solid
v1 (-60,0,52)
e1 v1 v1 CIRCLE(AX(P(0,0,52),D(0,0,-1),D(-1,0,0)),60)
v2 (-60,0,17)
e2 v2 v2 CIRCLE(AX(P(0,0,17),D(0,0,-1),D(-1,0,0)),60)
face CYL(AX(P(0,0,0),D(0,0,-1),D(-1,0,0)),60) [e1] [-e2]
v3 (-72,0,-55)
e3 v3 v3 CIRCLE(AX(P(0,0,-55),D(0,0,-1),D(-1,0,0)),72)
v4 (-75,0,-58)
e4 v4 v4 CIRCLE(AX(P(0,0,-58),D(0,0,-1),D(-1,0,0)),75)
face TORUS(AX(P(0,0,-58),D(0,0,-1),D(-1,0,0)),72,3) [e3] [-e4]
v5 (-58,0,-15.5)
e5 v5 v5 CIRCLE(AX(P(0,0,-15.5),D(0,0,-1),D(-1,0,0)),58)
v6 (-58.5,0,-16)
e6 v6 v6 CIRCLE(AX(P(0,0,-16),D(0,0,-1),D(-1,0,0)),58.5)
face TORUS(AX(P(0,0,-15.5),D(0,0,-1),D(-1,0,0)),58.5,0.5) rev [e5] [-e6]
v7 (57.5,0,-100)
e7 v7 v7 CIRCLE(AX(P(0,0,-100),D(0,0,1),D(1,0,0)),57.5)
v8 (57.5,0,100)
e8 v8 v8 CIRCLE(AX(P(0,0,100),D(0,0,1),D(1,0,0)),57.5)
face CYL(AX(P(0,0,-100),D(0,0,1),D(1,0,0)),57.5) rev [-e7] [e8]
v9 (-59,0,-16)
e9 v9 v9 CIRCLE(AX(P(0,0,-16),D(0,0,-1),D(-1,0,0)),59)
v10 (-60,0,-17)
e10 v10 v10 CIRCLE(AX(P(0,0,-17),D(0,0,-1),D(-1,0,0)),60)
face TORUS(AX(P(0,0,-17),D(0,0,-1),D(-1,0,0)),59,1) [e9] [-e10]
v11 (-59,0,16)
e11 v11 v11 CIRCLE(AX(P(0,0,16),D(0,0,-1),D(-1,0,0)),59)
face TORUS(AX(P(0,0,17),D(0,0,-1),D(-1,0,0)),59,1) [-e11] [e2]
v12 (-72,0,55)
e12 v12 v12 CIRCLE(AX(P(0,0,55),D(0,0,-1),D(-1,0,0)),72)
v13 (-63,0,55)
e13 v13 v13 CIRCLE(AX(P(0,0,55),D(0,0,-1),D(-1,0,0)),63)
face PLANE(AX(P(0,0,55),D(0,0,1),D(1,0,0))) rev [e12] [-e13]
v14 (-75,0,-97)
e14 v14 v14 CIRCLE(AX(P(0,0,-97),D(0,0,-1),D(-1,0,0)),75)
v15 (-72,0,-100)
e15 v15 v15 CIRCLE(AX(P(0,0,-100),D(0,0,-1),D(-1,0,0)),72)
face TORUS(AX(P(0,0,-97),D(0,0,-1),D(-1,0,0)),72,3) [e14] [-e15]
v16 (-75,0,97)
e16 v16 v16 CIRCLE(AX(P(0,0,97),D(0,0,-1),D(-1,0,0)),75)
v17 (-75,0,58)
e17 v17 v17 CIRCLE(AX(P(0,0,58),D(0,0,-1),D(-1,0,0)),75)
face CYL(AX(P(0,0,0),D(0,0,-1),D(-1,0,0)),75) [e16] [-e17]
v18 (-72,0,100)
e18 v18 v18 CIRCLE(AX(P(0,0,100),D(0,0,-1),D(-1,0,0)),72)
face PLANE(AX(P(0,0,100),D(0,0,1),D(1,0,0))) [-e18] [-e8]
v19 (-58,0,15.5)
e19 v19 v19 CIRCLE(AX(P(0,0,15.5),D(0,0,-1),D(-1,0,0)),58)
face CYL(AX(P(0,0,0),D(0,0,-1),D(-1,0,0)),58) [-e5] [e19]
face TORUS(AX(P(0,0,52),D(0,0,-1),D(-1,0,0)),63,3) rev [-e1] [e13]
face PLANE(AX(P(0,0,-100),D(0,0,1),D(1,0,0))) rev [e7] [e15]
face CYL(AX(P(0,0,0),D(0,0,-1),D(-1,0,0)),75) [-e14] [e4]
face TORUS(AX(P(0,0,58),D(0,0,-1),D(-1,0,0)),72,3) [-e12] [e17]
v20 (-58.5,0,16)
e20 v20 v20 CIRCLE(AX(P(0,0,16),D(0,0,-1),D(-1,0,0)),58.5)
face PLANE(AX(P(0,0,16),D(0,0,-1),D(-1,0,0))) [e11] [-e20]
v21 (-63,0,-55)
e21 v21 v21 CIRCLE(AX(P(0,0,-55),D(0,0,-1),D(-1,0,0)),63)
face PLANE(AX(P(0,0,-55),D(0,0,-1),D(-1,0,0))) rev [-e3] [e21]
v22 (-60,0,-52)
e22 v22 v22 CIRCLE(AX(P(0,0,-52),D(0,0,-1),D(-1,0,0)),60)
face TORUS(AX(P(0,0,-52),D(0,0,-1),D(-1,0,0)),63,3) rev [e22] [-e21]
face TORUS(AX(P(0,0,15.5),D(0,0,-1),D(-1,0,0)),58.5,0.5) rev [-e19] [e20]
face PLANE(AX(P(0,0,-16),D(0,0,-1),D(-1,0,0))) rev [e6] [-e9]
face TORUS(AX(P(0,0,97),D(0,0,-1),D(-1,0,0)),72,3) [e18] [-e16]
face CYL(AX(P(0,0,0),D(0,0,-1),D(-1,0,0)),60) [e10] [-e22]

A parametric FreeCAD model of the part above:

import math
import FreeCAD as App
import Part
import Sketcher
Q = App.Units.Quantity

doc = App.newDocument("Part")
body = doc.addObject("PartDesign::Body", "Body")

# Sketch on YZ plane
sketch1 = body.newObject("Sketcher::SketchObject", "Sketch")
sketch1.AttachmentSupport = (doc.getObject("YZ_Plane"), [""])
sketch1.MapMode = "FlatFace"
sketch1.addGeometry(Part.ArcOfCircle(Part.Circle(App.Vector(58.5, -15.5, 0), App.Vector(0, 0, 1), 0.5), math.radians(180), math.radians(270)), False)
sketch1.addGeometry(Part.LineSegment(App.Vector(58, -15.5, 0), App.Vector(58, 15.5, 0)), False)
sketch1.addGeometry(Part.ArcOfCircle(Part.Circle(App.Vector(58.5, 15.5, 0), App.Vector(0, 0, 1), 0.5), math.radians(90), math.radians(180)), False)
sketch1.addGeometry(Part.LineSegment(App.Vector(58.5, 16, 0), App.Vector(59, 16, 0)), False)
sketch1.addGeometry(Part.ArcOfCircle(Part.Circle(App.Vector(59, 17, 0), App.Vector(0, 0, 1), 1), math.radians(-90), math.radians(0)), False)
sketch1.addGeometry(Part.LineSegment(App.Vector(60, 17, 0), App.Vector(60, 52, 0)), False)
sketch1.addGeometry(Part.ArcOfCircle(Part.Circle(App.Vector(63, 52, 0), App.Vector(0, 0, 1), 3), math.radians(90), math.radians(180)), False)
sketch1.addGeometry(Part.LineSegment(App.Vector(63, 55, 0), App.Vector(72, 55, 0)), False)
sketch1.addGeometry(Part.ArcOfCircle(Part.Circle(App.Vector(72, 58, 0), App.Vector(0, 0, 1), 3), math.radians(-90), math.radians(0)), False)
sketch1.addGeometry(Part.LineSegment(App.Vector(75, 58, 0), App.Vector(75, 97, 0)), False)
sketch1.addGeometry(Part.ArcOfCircle(Part.Circle(App.Vector(72, 97, 0), App.Vector(0, 0, 1), 3), math.radians(0), math.radians(90)), False)
sketch1.addGeometry(Part.LineSegment(App.Vector(72, 100, 0), App.Vector(0, 100, 0)), False)
sketch1.addGeometry(Part.LineSegment(App.Vector(0, 100, 0), App.Vector(0, -100, 0)), False)
sketch1.addGeometry(Part.LineSegment(App.Vector(0, -100, 0), App.Vector(72, -100, 0)), False)
sketch1.addGeometry(Part.ArcOfCircle(Part.Circle(App.Vector(72, -97, 0), App.Vector(0, 0, 1), 3), math.radians(-90), math.radians(0)), False)
sketch1.addGeometry(Part.LineSegment(App.Vector(75, -97, 0), App.Vector(75, -58, 0)), False)
sketch1.addGeometry(Part.ArcOfCircle(Part.Circle(App.Vector(72, -58, 0), App.Vector(0, 0, 1), 3), math.radians(0), math.radians(90)), False)
sketch1.addGeometry(Part.LineSegment(App.Vector(72, -55, 0), App.Vector(63, -55, 0)), False)
sketch1.addGeometry(Part.ArcOfCircle(Part.Circle(App.Vector(63, -52, 0), App.Vector(0, 0, 1), 3), math.radians(180), math.radians(270)), False)
sketch1.addGeometry(Part.LineSegment(App.Vector(60, -52, 0), App.Vector(60, -17, 0)), False)
sketch1.addGeometry(Part.ArcOfCircle(Part.Circle(App.Vector(59, -17, 0), App.Vector(0, 0, 1), 1), math.radians(0), math.radians(90)), False)
sketch1.addGeometry(Part.LineSegment(App.Vector(59, -16, 0), App.Vector(58.5, -16, 0)), False)
sketch1.addConstraint(Sketcher.Constraint("Tangent", 0, 1, 1, 1))
sketch1.addConstraint(Sketcher.Constraint("Tangent", 1, 2, 2, 2))
sketch1.addConstraint(Sketcher.Constraint("Tangent", 2, 1, 3, 1))
sketch1.addConstraint(Sketcher.Constraint("Tangent", 3, 2, 4, 1))
sketch1.addConstraint(Sketcher.Constraint("Tangent", 4, 2, 5, 1))
sketch1.addConstraint(Sketcher.Constraint("Tangent", 5, 2, 6, 2))
sketch1.addConstraint(Sketcher.Constraint("Tangent", 6, 1, 7, 1))
sketch1.addConstraint(Sketcher.Constraint("Tangent", 7, 2, 8, 1))
sketch1.addConstraint(Sketcher.Constraint("Tangent", 8, 2, 9, 1))
sketch1.addConstraint(Sketcher.Constraint("Tangent", 9, 2, 10, 1))
sketch1.addConstraint(Sketcher.Constraint("Tangent", 10, 2, 11, 1))
sketch1.addConstraint(Sketcher.Constraint("Coincident", 11, 2, 12, 1))
sketch1.addConstraint(Sketcher.Constraint("Coincident", 12, 2, 13, 1))
sketch1.addConstraint(Sketcher.Constraint("Tangent", 13, 2, 14, 1))
sketch1.addConstraint(Sketcher.Constraint("Tangent", 14, 2, 15, 1))
sketch1.addConstraint(Sketcher.Constraint("Tangent", 15, 2, 16, 1))
sketch1.addConstraint(Sketcher.Constraint("Tangent", 16, 2, 17, 1))
sketch1.addConstraint(Sketcher.Constraint("Tangent", 17, 2, 18, 2))
sketch1.addConstraint(Sketcher.Constraint("Tangent", 18, 1, 19, 1))
sketch1.addConstraint(Sketcher.Constraint("Tangent", 19, 2, 20, 1))
sketch1.addConstraint(Sketcher.Constraint("Tangent", 20, 2, 21, 1))
sketch1.addConstraint(Sketcher.Constraint("Tangent", 21, 2, 0, 2))
sketch1.addConstraint(Sketcher.Constraint("Vertical", 1))
sketch1.addConstraint(Sketcher.Constraint("Horizontal", 3))
sketch1.addConstraint(Sketcher.Constraint("Vertical", 5))
sketch1.addConstraint(Sketcher.Constraint("Horizontal", 7))
sketch1.addConstraint(Sketcher.Constraint("Vertical", 9))
sketch1.addConstraint(Sketcher.Constraint("Horizontal", 11))
sketch1.addConstraint(Sketcher.Constraint("Vertical", 12))
sketch1.addConstraint(Sketcher.Constraint("Horizontal", 13))
sketch1.addConstraint(Sketcher.Constraint("Vertical", 15))
sketch1.addConstraint(Sketcher.Constraint("Horizontal", 17))
sketch1.addConstraint(Sketcher.Constraint("Vertical", 19))
sketch1.addConstraint(Sketcher.Constraint("Horizontal", 21))
sketch1.addConstraint(Sketcher.Constraint("Equal", 0, 2))
sketch1.addConstraint(Sketcher.Constraint("Equal", 6, 8))
sketch1.addConstraint(Sketcher.Constraint("Equal", 8, 10))
sketch1.addConstraint(Sketcher.Constraint("Equal", 10, 14))
sketch1.addConstraint(Sketcher.Constraint("Equal", 14, 16))
sketch1.addConstraint(Sketcher.Constraint("Equal", 16, 18))
sketch1.addConstraint(Sketcher.Constraint("Equal", 4, 20))
sketch1.addConstraint(Sketcher.Constraint("Symmetric", 11, 2, 12, 2, -1, 1))
sketch1.addConstraint(Sketcher.Constraint("Symmetric", 8, 3, 16, 3, -1))
sketch1.addConstraint(Sketcher.Constraint("Symmetric", 4, 3, 20, 3, -1))
sketch1.addConstraint(Sketcher.Constraint("Radius", 4, Q("1 mm")))
sketch1.addConstraint(Sketcher.Constraint("Radius", 6, Q("3 mm")))
sketch1.addConstraint(Sketcher.Constraint("Radius", 0, Q("0.5 mm")))
sketch1.addConstraint(Sketcher.Constraint("DistanceX", 7, 1, 7, 2, Q("9 mm")))
sketch1.addConstraint(Sketcher.Constraint("DistanceX", 11, 2, 11, 1, Q("72 mm")))
sketch1.addConstraint(Sketcher.Constraint("DistanceY", 1, 1, 1, 2, Q("31 mm")))
sketch1.addConstraint(Sketcher.Constraint("DistanceY", 5, 1, 5, 2, Q("35 mm")))
sketch1.addConstraint(Sketcher.Constraint("DistanceY", 9, 1, 9, 2, Q("39 mm")))
sketch1.addConstraint(Sketcher.Constraint("DistanceX", 3, 1, 3, 2, Q("0.5 mm")))
revolution = body.newObject("PartDesign::Revolution", "Revolution")
revolution.Profile = sketch1
revolution.ReferenceAxis = (sketch1, ["V_Axis"])
revolution.Angle = 360

# Sketch on XY plane
sketch2 = body.newObject("Sketcher::SketchObject", "Sketch001")
sketch2.AttachmentSupport = (doc.getObject("XY_Plane"), [""])
sketch2.MapMode = "FlatFace"
sketch2.AttachmentOffset = App.Placement(App.Vector(0, 0, 100), App.Rotation())
sketch2.addGeometry(Part.Circle(App.Vector(0, 0, 0), App.Vector(0, 0, 1), 58), False)
sketch2.addConstraint(Sketcher.Constraint("Coincident", 0, 3, -1, 1))
sketch2.addConstraint(Sketcher.Constraint("Diameter", 0, Q("115 mm")))
pocket1 = body.newObject("PartDesign::Pocket", "Pocket")
pocket1.Profile = sketch2
pocket1.Type = "ThroughAll"

doc.recompute()
